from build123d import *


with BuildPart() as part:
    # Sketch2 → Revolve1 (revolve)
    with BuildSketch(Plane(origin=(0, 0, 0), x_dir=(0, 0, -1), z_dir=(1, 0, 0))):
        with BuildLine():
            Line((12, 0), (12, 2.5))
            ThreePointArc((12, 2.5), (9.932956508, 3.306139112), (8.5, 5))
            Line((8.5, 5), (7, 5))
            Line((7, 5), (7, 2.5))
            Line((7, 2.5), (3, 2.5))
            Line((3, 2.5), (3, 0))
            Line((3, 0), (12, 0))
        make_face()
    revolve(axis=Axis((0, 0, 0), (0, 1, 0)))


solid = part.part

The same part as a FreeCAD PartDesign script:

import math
import FreeCAD as App
import Part
import Sketcher
Q = App.Units.Quantity

doc = App.newDocument("Part")
body = doc.addObject("PartDesign::Body", "Body")

# Sketch on YZ plane
sketch1 = body.newObject("Sketcher::SketchObject", "Sketch")
sketch1.AttachmentSupport = (doc.getObject("YZ_Plane"), [""])
sketch1.MapMode = "FlatFace"
sketch1.addGeometry([
    Part.LineSegment(App.Vector(0, -12, 0), App.Vector(2.5, -12, 0)),  # 0
    Part.ArcOfCircle(Part.Circle(App.Vector(6.977912, -12.555651, 0), App.Vector(0, 0, 1), 4.512255), math.radians(115.998156), math.radians(172.926488)),  # 1
    Part.LineSegment(App.Vector(5, -8.5, 0), App.Vector(5, -7, 0)),  # 2
    Part.LineSegment(App.Vector(5, -7, 0), App.Vector(2.5, -7, 0)),  # 3
    Part.LineSegment(App.Vector(2.5, -7, 0), App.Vector(2.5, -3, 0)),  # 4
    Part.LineSegment(App.Vector(2.5, -3, 0), App.Vector(0, -3, 0)),  # 5
    Part.LineSegment(App.Vector(0, -3, 0), App.Vector(0, -12, 0)),  # 6
], False)
sketch1.addConstraint([
    Sketcher.Constraint("Coincident", 0, 2, 1, 2),
    Sketcher.Constraint("Coincident", 1, 1, 2, 1),
    Sketcher.Constraint("Coincident", 2, 2, 3, 1),
    Sketcher.Constraint("Coincident", 3, 2, 4, 1),
    Sketcher.Constraint("Coincident", 4, 2, 5, 1),
    Sketcher.Constraint("Coincident", 5, 2, 6, 1),
    Sketcher.Constraint("Coincident", 6, 2, 0, 1),
    Sketcher.Constraint("Horizontal", 0),
    Sketcher.Constraint("Vertical", 2),
    Sketcher.Constraint("Horizontal", 3),
    Sketcher.Constraint("Vertical", 4),
    Sketcher.Constraint("Horizontal", 5),
    Sketcher.Constraint("Vertical", 6),
    Sketcher.Constraint("PointOnObject", 5, 2, -2),
    Sketcher.Constraint("Vertical", 0, 2, 3, 2),
    Sketcher.Constraint("Equal", 0, 3),
    Sketcher.Constraint("DistanceY", 4, 1, 4, 2, Q("4 mm")),
    Sketcher.Constraint("DistanceY", 6, 2, 6, 1, Q("9 mm")),
    Sketcher.Constraint("DistanceX", 0, 1, 0, 2, Q("2.5 mm")),
    Sketcher.Constraint("DistanceY", 2, 1, 2, 2, Q("1.5 mm")),
    Sketcher.Constraint("DistanceY", 0, 2, -1, 1, Q("12 mm")),
    Sketcher.Constraint("Radius", 1, Q("4.512255 mm")),
])
revolution = body.newObject("PartDesign::Revolution", "Revolution")
revolution.Profile = sketch1
revolution.ReferenceAxis = (sketch1, ["H_Axis"])
revolution.Angle = 360

doc.recompute()
